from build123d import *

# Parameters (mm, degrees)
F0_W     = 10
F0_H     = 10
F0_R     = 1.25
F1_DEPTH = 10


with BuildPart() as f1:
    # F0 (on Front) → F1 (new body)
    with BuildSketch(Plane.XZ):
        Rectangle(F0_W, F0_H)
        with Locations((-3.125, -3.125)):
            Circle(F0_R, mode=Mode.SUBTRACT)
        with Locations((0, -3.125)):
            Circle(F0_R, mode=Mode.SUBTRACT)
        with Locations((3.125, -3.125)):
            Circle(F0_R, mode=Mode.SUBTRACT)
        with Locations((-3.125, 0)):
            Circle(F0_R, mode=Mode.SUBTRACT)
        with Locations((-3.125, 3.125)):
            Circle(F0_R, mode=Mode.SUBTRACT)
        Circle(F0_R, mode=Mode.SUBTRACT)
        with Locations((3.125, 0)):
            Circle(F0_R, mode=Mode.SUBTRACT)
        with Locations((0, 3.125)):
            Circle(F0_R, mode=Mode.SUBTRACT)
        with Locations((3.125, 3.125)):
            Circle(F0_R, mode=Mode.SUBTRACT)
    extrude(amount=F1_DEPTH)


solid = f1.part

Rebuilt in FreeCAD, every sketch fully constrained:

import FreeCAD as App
import Part
import Sketcher
Q = App.Units.Quantity

doc = App.newDocument("Part")
body = doc.addObject("PartDesign::Body", "Body")

# Sketch on XZ plane
sketch1 = body.newObject("Sketcher::SketchObject", "Sketch")
sketch1.AttachmentSupport = (doc.getObject("XZ_Plane"), [""])
sketch1.MapMode = "FlatFace"
sketch1.addGeometry(Part.LineSegment(App.Vector(-5, 5, 0), App.Vector(-5, -5, 0)), False)
sketch1.addGeometry(Part.LineSegment(App.Vector(-5, -5, 0), App.Vector(5, -5, 0)), False)
sketch1.addGeometry(Part.LineSegment(App.Vector(5, -5, 0), App.Vector(5, 5, 0)), False)
sketch1.addGeometry(Part.LineSegment(App.Vector(5, 5, 0), App.Vector(-5, 5, 0)), False)
sketch1.addGeometry(Part.Circle(App.Vector(-3.125, -3.125, 0), App.Vector(0, 0, 1), 1.25), False)
sketch1.addGeometry(Part.Circle(App.Vector(0, -3.125, 0), App.Vector(0, 0, 1), 1.25), False)
sketch1.addGeometry(Part.Circle(App.Vector(3.125, -3.125, 0), App.Vector(0, 0, 1), 1.25), False)
sketch1.addGeometry(Part.Circle(App.Vector(-3.125, 0, 0), App.Vector(0, 0, 1), 1.25), False)
sketch1.addGeometry(Part.Circle(App.Vector(-3.125, 3.125, 0), App.Vector(0, 0, 1), 1.25), False)
sketch1.addGeometry(Part.Circle(App.Vector(0, 0, 0), App.Vector(0, 0, 1), 1.25), False)
sketch1.addGeometry(Part.Circle(App.Vector(3.125, 0, 0), App.Vector(0, 0, 1), 1.25), False)
sketch1.addGeometry(Part.Circle(App.Vector(0, 3.125, 0), App.Vector(0, 0, 1), 1.25), False)
sketch1.addGeometry(Part.Circle(App.Vector(3.125, 3.125, 0), App.Vector(0, 0, 1), 1.25), False)
sketch1.addConstraint(Sketcher.Constraint("Coincident", 0, 2, 1, 1))
sketch1.addConstraint(Sketcher.Constraint("Coincident", 1, 2, 2, 1))
sketch1.addConstraint(Sketcher.Constraint("Coincident", 2, 2, 3, 1))
sketch1.addConstraint(Sketcher.Constraint("Coincident", 3, 2, 0, 1))
sketch1.addConstraint(Sketcher.Constraint("Vertical", 0))
sketch1.addConstraint(Sketcher.Constraint("Horizontal", 1))
sketch1.addConstraint(Sketcher.Constraint("Vertical", 2))
sketch1.addConstraint(Sketcher.Constraint("Horizontal", 3))
sketch1.addConstraint(Sketcher.Constraint("Coincident", 9, 3, -1, 1))
sketch1.addConstraint(Sketcher.Constraint("Equal", 4, 5))
sketch1.addConstraint(Sketcher.Constraint("Equal", 5, 6))
sketch1.addConstraint(Sketcher.Constraint("Equal", 6, 7))
sketch1.addConstraint(Sketcher.Constraint("Equal", 7, 8))
sketch1.addConstraint(Sketcher.Constraint("Equal", 8, 9))
sketch1.addConstraint(Sketcher.Constraint("Equal", 9, 10))
sketch1.addConstraint(Sketcher.Constraint("Equal", 10, 11))
sketch1.addConstraint(Sketcher.Constraint("Equal", 11, 12))
sketch1.addConstraint(Sketcher.Constraint("Symmetric", 6, 3, 8, 3, -1, 1))
sketch1.addConstraint(Sketcher.Constraint("Symmetric", 7, 3, 10, 3, -1, 1))
sketch1.addConstraint(Sketcher.Constraint("Symmetric", 5, 3, 11, 3, -1, 1))
sketch1.addConstraint(Sketcher.Constraint("Symmetric", 4, 3, 12, 3, -1, 1))
sketch1.addConstraint(Sketcher.Constraint("Symmetric", 0, 2, 2, 2, -1, 1))
sketch1.addConstraint(Sketcher.Constraint("Symmetric", 4, 3, 6, 3, -2))
sketch1.addConstraint(Sketcher.Constraint("PointOnObject", 5, 3, -2))
sketch1.addConstraint(Sketcher.Constraint("PointOnObject", 7, 3, -1))
sketch1.addConstraint(Sketcher.Constraint("Horizontal", 4, 3, 5, 3))
sketch1.addConstraint(Sketcher.Constraint("Vertical", 4, 3, 7, 3))
sketch1.addConstraint(Sketcher.Constraint("Equal", 3, 0))
sketch1.addConstraint(Sketcher.Constraint("Diameter", 4, Q("2.5 mm")))
sketch1.addConstraint(Sketcher.Constraint("DistanceX", 1, 1, 1, 2, Q("10 mm")))
sketch1.addConstraint(Sketcher.Constraint("DistanceX", 4, 3, 6, 3, Q("6.25 mm")))
sketch1.addConstraint(Sketcher.Constraint("DistanceY", 4, 3, 8, 3, Q("6.25 mm")))
pad1 = body.newObject("PartDesign::Pad", "Pad")
pad1.Profile = sketch1
pad1.Length = 10

doc.recompute()
